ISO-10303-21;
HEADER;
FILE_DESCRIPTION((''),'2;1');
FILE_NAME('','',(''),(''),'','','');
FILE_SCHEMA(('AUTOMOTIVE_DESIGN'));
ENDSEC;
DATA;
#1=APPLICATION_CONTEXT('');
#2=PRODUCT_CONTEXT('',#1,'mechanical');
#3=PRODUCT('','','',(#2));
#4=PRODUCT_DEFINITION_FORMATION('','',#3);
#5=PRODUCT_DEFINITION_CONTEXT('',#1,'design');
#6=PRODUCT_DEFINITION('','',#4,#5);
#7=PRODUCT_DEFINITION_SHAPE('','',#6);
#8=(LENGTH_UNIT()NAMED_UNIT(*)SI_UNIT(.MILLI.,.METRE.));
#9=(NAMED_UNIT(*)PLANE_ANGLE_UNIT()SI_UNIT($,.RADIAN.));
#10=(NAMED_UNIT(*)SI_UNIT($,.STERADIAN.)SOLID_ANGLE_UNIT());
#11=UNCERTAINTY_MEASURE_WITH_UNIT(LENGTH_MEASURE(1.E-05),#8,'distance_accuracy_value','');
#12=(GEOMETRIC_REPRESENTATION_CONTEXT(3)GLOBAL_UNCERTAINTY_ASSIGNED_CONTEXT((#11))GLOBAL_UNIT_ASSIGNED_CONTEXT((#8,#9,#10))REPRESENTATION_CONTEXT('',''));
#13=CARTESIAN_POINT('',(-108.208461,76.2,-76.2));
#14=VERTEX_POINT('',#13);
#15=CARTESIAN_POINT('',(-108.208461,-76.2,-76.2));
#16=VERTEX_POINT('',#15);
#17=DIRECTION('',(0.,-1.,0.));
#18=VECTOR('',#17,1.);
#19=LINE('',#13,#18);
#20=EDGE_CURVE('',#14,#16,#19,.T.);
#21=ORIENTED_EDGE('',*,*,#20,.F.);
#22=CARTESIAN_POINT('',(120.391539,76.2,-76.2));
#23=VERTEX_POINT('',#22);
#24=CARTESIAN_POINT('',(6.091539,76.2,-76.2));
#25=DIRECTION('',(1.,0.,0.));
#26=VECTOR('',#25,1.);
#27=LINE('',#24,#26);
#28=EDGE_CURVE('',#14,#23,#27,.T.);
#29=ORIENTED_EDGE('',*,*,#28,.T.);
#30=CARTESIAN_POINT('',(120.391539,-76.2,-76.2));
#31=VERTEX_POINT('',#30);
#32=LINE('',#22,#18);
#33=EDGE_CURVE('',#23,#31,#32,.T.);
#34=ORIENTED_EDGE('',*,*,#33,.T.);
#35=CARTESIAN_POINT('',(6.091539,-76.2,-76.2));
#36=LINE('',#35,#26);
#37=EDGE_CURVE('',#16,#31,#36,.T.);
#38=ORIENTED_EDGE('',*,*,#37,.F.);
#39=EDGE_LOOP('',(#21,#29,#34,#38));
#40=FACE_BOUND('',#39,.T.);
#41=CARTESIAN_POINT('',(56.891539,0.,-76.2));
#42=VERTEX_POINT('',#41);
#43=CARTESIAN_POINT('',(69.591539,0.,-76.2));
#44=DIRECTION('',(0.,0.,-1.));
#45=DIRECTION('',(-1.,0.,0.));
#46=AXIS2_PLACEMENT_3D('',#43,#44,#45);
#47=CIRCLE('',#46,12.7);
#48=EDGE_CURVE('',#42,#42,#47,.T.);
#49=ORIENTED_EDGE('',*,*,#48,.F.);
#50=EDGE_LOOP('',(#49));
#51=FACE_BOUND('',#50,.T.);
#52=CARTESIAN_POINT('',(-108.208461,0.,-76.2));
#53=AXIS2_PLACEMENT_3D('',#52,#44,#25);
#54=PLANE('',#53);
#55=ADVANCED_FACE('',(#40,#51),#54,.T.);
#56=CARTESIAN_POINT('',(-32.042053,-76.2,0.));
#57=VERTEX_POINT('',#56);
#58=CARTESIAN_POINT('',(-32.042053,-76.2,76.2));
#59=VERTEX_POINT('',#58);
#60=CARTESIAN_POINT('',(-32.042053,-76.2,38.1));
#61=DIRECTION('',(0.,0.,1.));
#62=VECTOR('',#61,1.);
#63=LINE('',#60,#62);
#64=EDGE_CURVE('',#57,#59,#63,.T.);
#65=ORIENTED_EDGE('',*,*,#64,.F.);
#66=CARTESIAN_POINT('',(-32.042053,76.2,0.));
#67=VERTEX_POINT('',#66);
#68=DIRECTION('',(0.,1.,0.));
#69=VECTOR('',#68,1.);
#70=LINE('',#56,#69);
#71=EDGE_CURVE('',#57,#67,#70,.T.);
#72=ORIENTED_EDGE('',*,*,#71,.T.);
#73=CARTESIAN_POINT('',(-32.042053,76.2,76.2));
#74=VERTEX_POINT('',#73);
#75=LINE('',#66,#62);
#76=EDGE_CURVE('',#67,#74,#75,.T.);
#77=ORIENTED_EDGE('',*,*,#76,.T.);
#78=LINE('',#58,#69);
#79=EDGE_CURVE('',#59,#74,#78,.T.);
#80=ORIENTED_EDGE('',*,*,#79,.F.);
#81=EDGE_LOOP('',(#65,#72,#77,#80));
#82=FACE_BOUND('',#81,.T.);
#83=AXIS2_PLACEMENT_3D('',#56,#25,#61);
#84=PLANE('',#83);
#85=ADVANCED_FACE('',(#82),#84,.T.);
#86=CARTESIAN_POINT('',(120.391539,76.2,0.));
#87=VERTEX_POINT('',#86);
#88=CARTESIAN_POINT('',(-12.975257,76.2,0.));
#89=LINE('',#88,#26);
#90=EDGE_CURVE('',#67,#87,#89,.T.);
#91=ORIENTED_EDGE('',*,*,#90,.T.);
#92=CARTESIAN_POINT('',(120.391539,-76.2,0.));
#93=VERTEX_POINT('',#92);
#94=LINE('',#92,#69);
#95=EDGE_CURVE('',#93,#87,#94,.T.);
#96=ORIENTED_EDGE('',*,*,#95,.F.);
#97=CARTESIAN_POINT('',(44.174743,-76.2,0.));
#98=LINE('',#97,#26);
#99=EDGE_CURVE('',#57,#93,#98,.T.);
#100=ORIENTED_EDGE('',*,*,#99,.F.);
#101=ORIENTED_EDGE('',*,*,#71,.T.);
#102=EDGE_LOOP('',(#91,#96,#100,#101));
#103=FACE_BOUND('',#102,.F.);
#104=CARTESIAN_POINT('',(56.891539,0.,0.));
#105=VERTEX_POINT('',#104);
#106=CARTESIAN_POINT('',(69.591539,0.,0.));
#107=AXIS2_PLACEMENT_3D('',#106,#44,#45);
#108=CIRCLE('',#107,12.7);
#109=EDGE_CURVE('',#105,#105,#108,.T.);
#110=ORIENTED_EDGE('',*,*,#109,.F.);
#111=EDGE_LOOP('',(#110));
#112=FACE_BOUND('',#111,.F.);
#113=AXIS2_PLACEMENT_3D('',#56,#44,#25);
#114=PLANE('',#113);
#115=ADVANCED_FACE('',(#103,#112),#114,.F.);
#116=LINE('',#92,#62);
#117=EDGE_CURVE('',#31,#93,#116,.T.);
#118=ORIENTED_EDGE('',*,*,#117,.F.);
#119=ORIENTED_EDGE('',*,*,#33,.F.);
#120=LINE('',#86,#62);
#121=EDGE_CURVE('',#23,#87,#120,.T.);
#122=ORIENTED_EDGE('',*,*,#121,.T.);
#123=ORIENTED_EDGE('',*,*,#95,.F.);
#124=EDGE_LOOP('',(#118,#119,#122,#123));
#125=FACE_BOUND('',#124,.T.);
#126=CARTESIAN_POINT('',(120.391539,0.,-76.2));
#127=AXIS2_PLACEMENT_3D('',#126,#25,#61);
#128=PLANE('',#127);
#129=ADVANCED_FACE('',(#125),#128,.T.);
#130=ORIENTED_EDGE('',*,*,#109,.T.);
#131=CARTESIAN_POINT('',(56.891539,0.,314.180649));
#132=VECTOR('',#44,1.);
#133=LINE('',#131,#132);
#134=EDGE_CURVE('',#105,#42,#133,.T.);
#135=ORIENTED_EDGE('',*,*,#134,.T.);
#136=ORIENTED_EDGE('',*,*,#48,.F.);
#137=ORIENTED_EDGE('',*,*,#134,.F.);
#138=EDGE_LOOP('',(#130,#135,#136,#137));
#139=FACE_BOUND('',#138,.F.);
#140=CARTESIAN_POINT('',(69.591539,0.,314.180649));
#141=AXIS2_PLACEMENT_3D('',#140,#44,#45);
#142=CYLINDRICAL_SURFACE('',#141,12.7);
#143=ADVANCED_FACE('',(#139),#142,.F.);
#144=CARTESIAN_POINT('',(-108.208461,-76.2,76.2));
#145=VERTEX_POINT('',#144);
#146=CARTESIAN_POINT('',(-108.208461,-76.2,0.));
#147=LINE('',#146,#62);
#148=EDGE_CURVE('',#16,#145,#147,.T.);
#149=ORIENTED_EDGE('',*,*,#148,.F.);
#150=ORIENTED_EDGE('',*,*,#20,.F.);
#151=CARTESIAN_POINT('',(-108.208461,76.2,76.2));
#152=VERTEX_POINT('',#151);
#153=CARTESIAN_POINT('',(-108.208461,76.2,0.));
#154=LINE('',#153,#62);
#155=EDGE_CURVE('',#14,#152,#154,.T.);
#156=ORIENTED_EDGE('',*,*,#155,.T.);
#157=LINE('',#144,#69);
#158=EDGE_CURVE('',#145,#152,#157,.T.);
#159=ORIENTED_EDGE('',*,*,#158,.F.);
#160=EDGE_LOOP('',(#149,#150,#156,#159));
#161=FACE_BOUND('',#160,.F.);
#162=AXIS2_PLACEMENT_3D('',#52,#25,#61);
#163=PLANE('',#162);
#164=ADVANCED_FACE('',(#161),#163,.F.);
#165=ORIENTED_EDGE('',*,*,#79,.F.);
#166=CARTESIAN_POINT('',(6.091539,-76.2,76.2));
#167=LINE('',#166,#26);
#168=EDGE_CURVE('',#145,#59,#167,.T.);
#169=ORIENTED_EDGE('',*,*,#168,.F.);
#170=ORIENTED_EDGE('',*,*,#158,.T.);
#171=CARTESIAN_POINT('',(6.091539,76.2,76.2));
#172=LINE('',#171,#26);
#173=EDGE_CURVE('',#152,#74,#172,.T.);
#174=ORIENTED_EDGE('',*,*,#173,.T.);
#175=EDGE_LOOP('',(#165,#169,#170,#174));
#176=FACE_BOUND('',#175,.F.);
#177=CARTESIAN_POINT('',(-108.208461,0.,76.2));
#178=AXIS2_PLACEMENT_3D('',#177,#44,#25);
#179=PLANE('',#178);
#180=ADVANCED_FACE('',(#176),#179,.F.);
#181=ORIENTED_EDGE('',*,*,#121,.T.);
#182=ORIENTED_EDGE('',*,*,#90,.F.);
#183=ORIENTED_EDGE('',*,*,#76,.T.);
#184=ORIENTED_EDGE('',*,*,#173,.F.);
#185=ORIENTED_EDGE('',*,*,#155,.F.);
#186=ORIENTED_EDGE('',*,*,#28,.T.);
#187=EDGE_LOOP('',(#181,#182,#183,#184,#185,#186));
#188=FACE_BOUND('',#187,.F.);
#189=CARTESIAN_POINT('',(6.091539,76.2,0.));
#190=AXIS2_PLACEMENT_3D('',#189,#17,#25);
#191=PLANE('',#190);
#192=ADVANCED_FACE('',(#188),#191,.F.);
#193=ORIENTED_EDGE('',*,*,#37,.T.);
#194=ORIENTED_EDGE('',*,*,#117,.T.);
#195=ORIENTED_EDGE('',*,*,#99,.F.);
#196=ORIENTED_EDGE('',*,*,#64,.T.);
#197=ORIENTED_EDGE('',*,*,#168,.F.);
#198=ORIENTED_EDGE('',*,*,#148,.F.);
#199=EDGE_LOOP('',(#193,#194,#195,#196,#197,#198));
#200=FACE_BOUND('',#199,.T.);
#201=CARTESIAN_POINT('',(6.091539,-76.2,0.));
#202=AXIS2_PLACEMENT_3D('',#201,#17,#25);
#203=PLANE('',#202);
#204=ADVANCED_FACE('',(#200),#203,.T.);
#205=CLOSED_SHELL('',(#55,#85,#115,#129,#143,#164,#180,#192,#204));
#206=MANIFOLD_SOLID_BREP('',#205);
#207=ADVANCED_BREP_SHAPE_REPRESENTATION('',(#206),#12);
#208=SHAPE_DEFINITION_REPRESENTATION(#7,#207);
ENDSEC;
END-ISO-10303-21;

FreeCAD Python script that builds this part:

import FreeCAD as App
import Part
import Sketcher

V = App.Vector
Q = App.Units.Quantity


def add_polygon(sketch, points):
    """Adds a closed chain of lines whose ends are joined by coincident constraints."""
    first, n = sketch.GeometryCount, len(points)
    for a, b in zip(points, points[1:] + points[:1]):
        sketch.addGeometry(Part.LineSegment(App.Vector(*a, 0), App.Vector(*b, 0)), False)
    for i in range(n):
        sketch.addConstraint(Sketcher.Constraint("Coincident", first + i, 2, first + (i + 1) % n, 1))

doc = App.newDocument("Part")
body = doc.addObject("PartDesign::Body", "Body")

# Sketch on XZ plane
sketch1 = doc.addObject("Sketcher::SketchObject", "Sketch")
body.addObject(sketch1)
sketch1.AttachmentSupport = (doc.XZ_Plane, [""])
sketch1.MapMode = "FlatFace"
add_polygon(sketch1, [(-108, 76), (-108, -76), (120, -76), (120, 76)])  # lines 0-3
sketch1.addConstraint(Sketcher.Constraint("Vertical", 0))
sketch1.addConstraint(Sketcher.Constraint("Horizontal", 1))
sketch1.addConstraint(Sketcher.Constraint("Vertical", 2))
sketch1.addConstraint(Sketcher.Constraint("Horizontal", 3))
sketch1.addConstraint(Sketcher.Constraint("DistanceX", 1, 1, 1, 2, Q("9 in")))
sketch1.addConstraint(Sketcher.Constraint("DistanceY", 0, 2, 0, 1, Q("6 in")))
sketch1.addConstraint(Sketcher.Constraint("DistanceY", 0, 2, -1, 1, Q("3 in")))
sketch1.addConstraint(Sketcher.Constraint("DistanceX", 0, 2, -1, 1, 108.208461))
pad1 = doc.addObject("PartDesign::Pad", "Pad")
body.addObject(pad1)
pad1.Profile = sketch1
pad1.Length = Q("6 in")
pad1.Midplane = True

# Sketch on XZ plane
sketch2 = doc.addObject("Sketcher::SketchObject", "Sketch001")
body.addObject(sketch2)
sketch2.AttachmentSupport = (doc.XZ_Plane, [""])
sketch2.MapMode = "FlatFace"
sketch2.AttachmentOffset = App.Placement(V(0, 0, 3 * 25.4), App.Rotation())
add_polygon(sketch2, [(-32, 76), (-32, 0), (120, 0), (120, 76)])  # lines 0-3
sketch2.addConstraint(Sketcher.Constraint("Vertical", 0))
sketch2.addConstraint(Sketcher.Constraint("Horizontal", 1))
sketch2.addConstraint(Sketcher.Constraint("Vertical", 2))
sketch2.addConstraint(Sketcher.Constraint("Horizontal", 3))
sketch2.addConstraint(Sketcher.Constraint("PointOnObject", 0, 2, -1))
sketch2.addConstraint(Sketcher.Constraint("DistanceY", 0, 2, 0, 1, Q("3 in")))
sketch2.addConstraint(Sketcher.Constraint("DistanceX", 1, 1, 1, 2, 152.433592))
sketch2.addConstraint(Sketcher.Constraint("DistanceX", -1, 1, 1, 2, 120.391539))
pocket1 = doc.addObject("PartDesign::Pocket", "Pocket")
body.addObject(pocket1)
pocket1.Profile = sketch2
pocket1.Type = "ThroughAll"

# Sketch on XY plane
sketch3 = doc.addObject("Sketcher::SketchObject", "Sketch002")
body.addObject(sketch3)
sketch3.AttachmentSupport = (doc.XY_Plane, [""])
sketch3.MapMode = "FlatFace"
sketch3.addGeometry(Part.Circle(V(70, 0, 0), V(0, 0, 1), 13), False)
sketch3.addConstraint(Sketcher.Constraint("PointOnObject", 0, 3, -1))
sketch3.addConstraint(Sketcher.Constraint("Diameter", 0, Q("1 in")))
sketch3.addConstraint(Sketcher.Constraint("DistanceX", -1, 1, 0, 3, 69.591539))
doc.recompute()
hole = doc.addObject("PartDesign::Hole", "Hole")
body.addObject(hole)
hole.Profile = sketch3
hole.ThreadType = "None"
hole.Diameter = Q("1 in")
hole.DepthType = "ThroughAll"

doc.recompute()
